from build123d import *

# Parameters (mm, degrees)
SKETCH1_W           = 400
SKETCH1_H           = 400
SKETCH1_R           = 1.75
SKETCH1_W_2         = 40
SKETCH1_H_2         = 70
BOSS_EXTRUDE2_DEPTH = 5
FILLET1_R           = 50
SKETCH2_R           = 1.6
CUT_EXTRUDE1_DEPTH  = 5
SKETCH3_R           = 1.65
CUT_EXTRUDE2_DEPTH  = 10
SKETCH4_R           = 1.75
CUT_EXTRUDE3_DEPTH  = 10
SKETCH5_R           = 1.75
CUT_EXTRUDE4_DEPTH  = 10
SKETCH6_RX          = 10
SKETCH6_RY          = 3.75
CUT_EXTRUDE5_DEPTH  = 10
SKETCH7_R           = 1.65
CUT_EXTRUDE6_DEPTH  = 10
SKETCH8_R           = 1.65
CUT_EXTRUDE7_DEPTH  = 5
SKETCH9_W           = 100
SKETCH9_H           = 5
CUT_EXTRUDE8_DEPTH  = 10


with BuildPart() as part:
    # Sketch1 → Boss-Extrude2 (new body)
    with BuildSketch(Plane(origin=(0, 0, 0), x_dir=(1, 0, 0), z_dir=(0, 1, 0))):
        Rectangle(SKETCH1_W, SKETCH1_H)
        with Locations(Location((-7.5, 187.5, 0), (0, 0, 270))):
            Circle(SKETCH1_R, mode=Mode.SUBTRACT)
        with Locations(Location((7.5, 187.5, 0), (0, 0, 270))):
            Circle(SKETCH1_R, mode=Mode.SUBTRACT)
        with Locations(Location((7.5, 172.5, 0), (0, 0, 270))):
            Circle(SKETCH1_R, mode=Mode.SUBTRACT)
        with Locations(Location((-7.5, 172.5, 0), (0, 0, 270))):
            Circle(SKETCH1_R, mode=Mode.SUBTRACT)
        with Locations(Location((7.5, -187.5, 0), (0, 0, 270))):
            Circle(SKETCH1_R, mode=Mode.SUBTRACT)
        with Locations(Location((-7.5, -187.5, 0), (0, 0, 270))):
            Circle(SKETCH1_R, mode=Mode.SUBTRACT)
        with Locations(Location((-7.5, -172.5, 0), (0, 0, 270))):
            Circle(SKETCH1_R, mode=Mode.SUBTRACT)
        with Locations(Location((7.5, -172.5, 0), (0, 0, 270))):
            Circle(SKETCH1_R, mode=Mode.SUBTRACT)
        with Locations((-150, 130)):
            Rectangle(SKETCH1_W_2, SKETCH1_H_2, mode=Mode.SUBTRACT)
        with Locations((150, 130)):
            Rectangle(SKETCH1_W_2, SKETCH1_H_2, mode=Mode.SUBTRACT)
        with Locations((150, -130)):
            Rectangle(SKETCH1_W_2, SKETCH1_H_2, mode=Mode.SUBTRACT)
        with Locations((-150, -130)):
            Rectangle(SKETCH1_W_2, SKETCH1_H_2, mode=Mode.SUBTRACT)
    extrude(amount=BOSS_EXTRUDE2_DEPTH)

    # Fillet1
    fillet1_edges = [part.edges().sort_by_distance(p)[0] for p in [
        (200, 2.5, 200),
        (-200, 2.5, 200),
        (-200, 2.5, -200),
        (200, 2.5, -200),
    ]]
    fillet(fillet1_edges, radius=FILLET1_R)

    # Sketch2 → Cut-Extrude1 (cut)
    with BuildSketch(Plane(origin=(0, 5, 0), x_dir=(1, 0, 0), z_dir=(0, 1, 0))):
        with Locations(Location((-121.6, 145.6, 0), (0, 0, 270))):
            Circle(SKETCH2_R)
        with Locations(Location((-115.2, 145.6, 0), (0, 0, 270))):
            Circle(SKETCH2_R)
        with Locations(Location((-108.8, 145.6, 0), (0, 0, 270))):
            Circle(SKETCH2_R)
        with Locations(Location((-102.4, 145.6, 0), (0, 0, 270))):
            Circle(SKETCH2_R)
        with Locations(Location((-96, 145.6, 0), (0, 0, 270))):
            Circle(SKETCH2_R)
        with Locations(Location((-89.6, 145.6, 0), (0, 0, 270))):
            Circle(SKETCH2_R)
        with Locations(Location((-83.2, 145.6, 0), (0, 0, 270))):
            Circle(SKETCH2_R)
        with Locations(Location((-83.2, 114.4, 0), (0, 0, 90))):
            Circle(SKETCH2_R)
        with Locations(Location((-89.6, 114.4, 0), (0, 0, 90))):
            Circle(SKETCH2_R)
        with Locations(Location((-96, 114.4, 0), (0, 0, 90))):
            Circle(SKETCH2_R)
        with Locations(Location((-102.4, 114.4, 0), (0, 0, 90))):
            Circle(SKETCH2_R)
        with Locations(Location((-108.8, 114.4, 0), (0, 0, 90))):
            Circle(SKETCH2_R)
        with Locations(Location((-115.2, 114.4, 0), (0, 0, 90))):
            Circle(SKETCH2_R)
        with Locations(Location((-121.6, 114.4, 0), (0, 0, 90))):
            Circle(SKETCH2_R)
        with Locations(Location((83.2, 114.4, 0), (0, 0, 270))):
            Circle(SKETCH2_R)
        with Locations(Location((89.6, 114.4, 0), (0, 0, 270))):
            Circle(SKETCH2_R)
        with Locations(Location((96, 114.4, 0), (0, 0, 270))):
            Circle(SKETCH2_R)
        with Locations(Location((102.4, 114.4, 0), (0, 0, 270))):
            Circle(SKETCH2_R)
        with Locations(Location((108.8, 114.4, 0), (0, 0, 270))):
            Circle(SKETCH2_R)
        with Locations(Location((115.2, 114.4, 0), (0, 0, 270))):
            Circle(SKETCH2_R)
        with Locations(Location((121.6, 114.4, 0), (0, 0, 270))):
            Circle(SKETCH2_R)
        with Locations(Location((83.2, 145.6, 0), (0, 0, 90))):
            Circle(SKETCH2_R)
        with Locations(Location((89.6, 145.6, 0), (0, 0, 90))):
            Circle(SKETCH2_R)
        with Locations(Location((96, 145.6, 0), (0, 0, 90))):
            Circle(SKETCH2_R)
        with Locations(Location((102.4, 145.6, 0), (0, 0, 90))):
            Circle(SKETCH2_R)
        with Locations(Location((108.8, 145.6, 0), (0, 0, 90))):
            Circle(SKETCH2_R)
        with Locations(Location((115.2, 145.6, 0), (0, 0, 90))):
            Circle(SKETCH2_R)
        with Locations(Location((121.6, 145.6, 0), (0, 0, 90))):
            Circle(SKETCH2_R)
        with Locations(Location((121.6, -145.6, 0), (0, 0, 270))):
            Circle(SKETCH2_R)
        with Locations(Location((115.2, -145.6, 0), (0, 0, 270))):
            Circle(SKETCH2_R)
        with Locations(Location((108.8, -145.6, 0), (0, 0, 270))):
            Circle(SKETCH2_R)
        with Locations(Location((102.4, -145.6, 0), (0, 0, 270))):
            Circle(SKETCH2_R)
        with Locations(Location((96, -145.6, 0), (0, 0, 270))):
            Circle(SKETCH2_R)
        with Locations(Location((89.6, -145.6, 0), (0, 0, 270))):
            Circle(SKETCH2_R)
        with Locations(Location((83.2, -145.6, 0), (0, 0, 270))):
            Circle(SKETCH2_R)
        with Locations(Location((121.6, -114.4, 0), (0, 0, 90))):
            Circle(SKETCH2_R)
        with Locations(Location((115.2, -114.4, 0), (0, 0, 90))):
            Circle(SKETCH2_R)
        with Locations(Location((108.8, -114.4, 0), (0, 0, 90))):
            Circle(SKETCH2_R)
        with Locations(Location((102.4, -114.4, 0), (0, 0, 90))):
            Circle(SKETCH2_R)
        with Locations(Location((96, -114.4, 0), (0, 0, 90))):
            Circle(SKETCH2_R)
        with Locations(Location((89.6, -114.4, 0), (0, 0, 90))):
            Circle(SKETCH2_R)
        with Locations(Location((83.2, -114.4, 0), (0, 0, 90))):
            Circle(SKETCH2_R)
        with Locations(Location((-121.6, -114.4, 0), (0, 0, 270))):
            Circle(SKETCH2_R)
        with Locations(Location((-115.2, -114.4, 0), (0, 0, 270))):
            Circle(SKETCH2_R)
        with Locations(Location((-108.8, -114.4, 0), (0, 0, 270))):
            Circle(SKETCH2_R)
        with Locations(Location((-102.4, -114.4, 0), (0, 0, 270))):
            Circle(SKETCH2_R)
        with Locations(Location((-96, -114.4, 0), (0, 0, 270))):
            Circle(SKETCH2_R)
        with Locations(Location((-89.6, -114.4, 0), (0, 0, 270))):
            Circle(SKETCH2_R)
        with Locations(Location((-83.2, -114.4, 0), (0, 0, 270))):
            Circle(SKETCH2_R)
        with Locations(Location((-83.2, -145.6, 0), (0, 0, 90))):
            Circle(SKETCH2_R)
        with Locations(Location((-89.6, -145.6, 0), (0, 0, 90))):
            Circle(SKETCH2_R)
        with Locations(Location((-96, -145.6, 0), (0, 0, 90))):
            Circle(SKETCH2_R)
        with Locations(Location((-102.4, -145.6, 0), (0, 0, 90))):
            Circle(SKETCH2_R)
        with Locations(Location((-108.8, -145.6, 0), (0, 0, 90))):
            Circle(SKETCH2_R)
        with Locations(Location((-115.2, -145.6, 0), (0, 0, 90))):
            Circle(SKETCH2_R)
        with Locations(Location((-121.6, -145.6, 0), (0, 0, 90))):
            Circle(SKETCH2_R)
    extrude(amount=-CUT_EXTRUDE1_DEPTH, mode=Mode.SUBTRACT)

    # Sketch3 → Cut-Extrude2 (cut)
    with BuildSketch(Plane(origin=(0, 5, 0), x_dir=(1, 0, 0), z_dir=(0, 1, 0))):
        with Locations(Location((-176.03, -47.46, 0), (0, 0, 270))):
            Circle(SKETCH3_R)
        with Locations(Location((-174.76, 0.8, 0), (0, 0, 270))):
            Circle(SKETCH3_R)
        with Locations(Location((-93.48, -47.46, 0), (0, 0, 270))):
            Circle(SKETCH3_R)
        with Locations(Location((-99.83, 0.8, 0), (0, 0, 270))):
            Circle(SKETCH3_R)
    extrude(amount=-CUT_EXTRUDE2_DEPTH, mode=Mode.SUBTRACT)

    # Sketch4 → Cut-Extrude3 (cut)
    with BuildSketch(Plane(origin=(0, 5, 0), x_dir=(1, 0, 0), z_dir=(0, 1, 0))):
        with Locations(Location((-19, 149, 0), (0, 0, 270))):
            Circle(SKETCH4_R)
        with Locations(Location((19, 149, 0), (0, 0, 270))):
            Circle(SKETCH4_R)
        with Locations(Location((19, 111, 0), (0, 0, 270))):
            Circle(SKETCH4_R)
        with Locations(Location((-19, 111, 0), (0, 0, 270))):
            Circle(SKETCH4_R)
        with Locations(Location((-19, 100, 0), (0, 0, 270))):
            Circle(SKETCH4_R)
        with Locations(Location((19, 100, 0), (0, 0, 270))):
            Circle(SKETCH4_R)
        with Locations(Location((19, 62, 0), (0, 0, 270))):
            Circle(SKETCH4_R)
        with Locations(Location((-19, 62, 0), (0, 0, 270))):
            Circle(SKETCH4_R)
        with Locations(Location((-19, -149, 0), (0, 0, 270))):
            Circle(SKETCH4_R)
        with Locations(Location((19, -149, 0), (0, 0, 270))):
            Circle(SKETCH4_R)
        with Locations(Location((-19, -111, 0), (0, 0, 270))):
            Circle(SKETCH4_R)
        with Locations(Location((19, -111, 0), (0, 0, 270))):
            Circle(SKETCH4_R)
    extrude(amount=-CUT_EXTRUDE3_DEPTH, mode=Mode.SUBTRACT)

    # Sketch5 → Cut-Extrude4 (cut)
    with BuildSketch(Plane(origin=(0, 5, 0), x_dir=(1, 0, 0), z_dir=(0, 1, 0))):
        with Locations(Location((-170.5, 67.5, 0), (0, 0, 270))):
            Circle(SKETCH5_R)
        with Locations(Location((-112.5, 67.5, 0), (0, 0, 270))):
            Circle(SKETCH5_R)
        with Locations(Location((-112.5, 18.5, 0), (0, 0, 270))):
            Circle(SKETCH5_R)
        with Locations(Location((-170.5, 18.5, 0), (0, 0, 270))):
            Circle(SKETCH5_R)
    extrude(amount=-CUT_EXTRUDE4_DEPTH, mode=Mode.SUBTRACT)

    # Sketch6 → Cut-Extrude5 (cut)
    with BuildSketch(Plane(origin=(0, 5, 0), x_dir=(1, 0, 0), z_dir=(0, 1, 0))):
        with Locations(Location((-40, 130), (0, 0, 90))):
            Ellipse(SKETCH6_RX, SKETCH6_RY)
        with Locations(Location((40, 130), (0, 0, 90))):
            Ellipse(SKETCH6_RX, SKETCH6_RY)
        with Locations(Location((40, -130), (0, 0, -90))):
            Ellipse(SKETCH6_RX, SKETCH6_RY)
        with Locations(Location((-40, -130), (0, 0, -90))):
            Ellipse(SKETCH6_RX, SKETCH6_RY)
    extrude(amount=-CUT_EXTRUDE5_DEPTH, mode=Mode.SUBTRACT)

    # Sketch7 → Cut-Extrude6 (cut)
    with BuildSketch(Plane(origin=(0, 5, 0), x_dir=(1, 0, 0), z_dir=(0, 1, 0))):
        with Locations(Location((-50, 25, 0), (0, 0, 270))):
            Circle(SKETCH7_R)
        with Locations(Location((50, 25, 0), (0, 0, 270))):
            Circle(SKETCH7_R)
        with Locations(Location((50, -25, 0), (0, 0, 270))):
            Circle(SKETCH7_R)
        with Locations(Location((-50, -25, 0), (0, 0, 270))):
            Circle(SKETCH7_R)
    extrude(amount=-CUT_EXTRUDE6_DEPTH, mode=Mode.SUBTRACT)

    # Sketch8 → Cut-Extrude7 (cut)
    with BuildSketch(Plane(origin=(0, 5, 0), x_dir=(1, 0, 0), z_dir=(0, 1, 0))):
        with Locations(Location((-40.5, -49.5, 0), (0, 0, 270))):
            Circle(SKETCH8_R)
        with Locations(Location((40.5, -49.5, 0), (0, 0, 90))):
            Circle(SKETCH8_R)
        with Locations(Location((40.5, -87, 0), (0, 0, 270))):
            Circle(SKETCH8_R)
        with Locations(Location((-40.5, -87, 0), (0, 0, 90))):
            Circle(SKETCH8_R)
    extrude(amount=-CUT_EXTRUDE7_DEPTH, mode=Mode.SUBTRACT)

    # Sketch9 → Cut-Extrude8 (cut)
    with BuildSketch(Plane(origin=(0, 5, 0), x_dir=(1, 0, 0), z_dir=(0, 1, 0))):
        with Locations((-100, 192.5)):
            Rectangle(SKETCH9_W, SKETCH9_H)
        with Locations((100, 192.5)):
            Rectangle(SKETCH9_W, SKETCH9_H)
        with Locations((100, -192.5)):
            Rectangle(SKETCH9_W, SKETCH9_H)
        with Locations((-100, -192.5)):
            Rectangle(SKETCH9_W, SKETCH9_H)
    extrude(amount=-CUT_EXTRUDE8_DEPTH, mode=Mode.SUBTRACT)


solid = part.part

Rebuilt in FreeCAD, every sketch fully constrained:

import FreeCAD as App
import Part
import Sketcher

V = App.Vector
Q = App.Units.Quantity


def edges_at(feature, points):
    """Names of the edges that pass closest to the given points."""
    edges = feature.Shape.Edges
    near = lambda p: min(range(len(edges)), key=lambda i: edges[i].distToShape(Part.Vertex(*p))[0])
    return sorted({f"Edge{near(p) + 1}" for p in points})

doc = App.newDocument("Part")
params = doc.addObject("Spreadsheet::Sheet", "Params")
for row, (alias, value) in enumerate([
    ("sketch1_diameter", "3.5 mm"),
    ("sketch1_width", "400 mm"),
    ("sketch1_width2", "40 mm"),
    ("sketch1_height", "70 mm"),
    ("pad1_length", "5 mm"),
    ("fillet_radius", "50 mm"),
    ("sketch2_diameter", "3.2 mm"),
    ("pocket1_length", "5 mm"),
    ("sketch3_diameter", "3.3 mm"),
    ("pocket2_length", "10 mm"),
    ("sketch4_diameter", "3.5 mm"),
    ("pocket3_length", "10 mm"),
    ("sketch5_diameter", "3.5 mm"),
    ("pocket4_length", "10 mm"),
    ("pocket5_length", "10 mm"),
    ("sketch7_diameter", "3.3 mm"),
    ("pocket6_length", "10 mm"),
    ("sketch8_diameter", "3.3 mm"),
    ("pocket7_length", "5 mm"),
    ("sketch9_width", "100 mm"),
    ("sketch9_height", "5 mm"),
    ("pocket8_length", "10 mm"),
], start=1):
    params.set(f"A{row}", alias)
    params.set(f"B{row}", "=" + value)
    params.setAlias(f"B{row}", alias)

body = doc.addObject("PartDesign::Body", "Body")

# Sketch on XZ plane
sketch1 = body.newObject("Sketcher::SketchObject", "Sketch")
sketch1.AttachmentSupport = (doc.getObject("XZ_Plane"), [""])
sketch1.MapMode = "FlatFace"
sketch1.addGeometry(Part.LineSegment(V(-200, -200, 0), V(-200, 200, 0)), False)
sketch1.addGeometry(Part.LineSegment(V(-200, 200, 0), V(200, 200, 0)), False)
sketch1.addGeometry(Part.LineSegment(V(200, 200, 0), V(200, -200, 0)), False)
sketch1.addGeometry(Part.LineSegment(V(200, -200, 0), V(-200, -200, 0)), False)
sketch1.addGeometry(Part.LineSegment(V(-130, 165, 0), V(-170, 165, 0)), False)
sketch1.addGeometry(Part.LineSegment(V(-170, 165, 0), V(-170, 95, 0)), False)
sketch1.addGeometry(Part.LineSegment(V(-170, 95, 0), V(-130, 95, 0)), False)
sketch1.addGeometry(Part.LineSegment(V(-130, 95, 0), V(-130, 165, 0)), False)
sketch1.addGeometry(Part.Circle(V(-7.5, 187.5, 0), V(0, 0, 1), 1.8), False)
sketch1.addGeometry(Part.Circle(V(-7.5, 172.5, 0), V(0, 0, 1), 1.8), False)
sketch1.addGeometry(Part.Circle(V(7.5, 187.5, 0), V(0, 0, 1), 1.8), False)
sketch1.addGeometry(Part.Circle(V(7.5, 172.5, 0), V(0, 0, 1), 1.8), False)
sketch1.addGeometry(Part.LineSegment(V(170, 165, 0), V(130, 165, 0)), False)
sketch1.addGeometry(Part.LineSegment(V(130, 165, 0), V(130, 95, 0)), False)
sketch1.addGeometry(Part.LineSegment(V(130, 95, 0), V(170, 95, 0)), False)
sketch1.addGeometry(Part.LineSegment(V(170, 95, 0), V(170, 165, 0)), False)
sketch1.addGeometry(Part.LineSegment(V(-130, -95, 0), V(-170, -95, 0)), False)
sketch1.addGeometry(Part.LineSegment(V(-170, -95, 0), V(-170, -165, 0)), False)
sketch1.addGeometry(Part.LineSegment(V(-170, -165, 0), V(-130, -165, 0)), False)
sketch1.addGeometry(Part.LineSegment(V(-130, -165, 0), V(-130, -95, 0)), False)
sketch1.addGeometry(Part.Circle(V(-7.5, -172.5, 0), V(0, 0, 1), 1.8), False)
sketch1.addGeometry(Part.Circle(V(-7.5, -187.5, 0), V(0, 0, 1), 1.8), False)
sketch1.addGeometry(Part.Circle(V(7.5, -172.5, 0), V(0, 0, 1), 1.8), False)
sketch1.addGeometry(Part.Circle(V(7.5, -187.5, 0), V(0, 0, 1), 1.8), False)
sketch1.addGeometry(Part.LineSegment(V(170, -95, 0), V(130, -95, 0)), False)
sketch1.addGeometry(Part.LineSegment(V(130, -95, 0), V(130, -165, 0)), False)
sketch1.addGeometry(Part.LineSegment(V(130, -165, 0), V(170, -165, 0)), False)
sketch1.addGeometry(Part.LineSegment(V(170, -165, 0), V(170, -95, 0)), False)
sketch1.addConstraint(Sketcher.Constraint("Coincident", 0, 2, 1, 1))
sketch1.addConstraint(Sketcher.Constraint("Coincident", 1, 2, 2, 1))
sketch1.addConstraint(Sketcher.Constraint("Coincident", 2, 2, 3, 1))
sketch1.addConstraint(Sketcher.Constraint("Coincident", 3, 2, 0, 1))
sketch1.addConstraint(Sketcher.Constraint("Coincident", 4, 2, 5, 1))
sketch1.addConstraint(Sketcher.Constraint("Coincident", 5, 2, 6, 1))
sketch1.addConstraint(Sketcher.Constraint("Coincident", 6, 2, 7, 1))
sketch1.addConstraint(Sketcher.Constraint("Coincident", 7, 2, 4, 1))
sketch1.addConstraint(Sketcher.Constraint("Coincident", 12, 2, 13, 1))
sketch1.addConstraint(Sketcher.Constraint("Coincident", 13, 2, 14, 1))
sketch1.addConstraint(Sketcher.Constraint("Coincident", 14, 2, 15, 1))
sketch1.addConstraint(Sketcher.Constraint("Coincident", 15, 2, 12, 1))
sketch1.addConstraint(Sketcher.Constraint("Coincident", 16, 2, 17, 1))
sketch1.addConstraint(Sketcher.Constraint("Coincident", 17, 2, 18, 1))
sketch1.addConstraint(Sketcher.Constraint("Coincident", 18, 2, 19, 1))
sketch1.addConstraint(Sketcher.Constraint("Coincident", 19, 2, 16, 1))
sketch1.addConstraint(Sketcher.Constraint("Coincident", 24, 2, 25, 1))
sketch1.addConstraint(Sketcher.Constraint("Coincident", 25, 2, 26, 1))
sketch1.addConstraint(Sketcher.Constraint("Coincident", 26, 2, 27, 1))
sketch1.addConstraint(Sketcher.Constraint("Coincident", 27, 2, 24, 1))
sketch1.addConstraint(Sketcher.Constraint("Vertical", 0))
sketch1.addConstraint(Sketcher.Constraint("Horizontal", 1))
sketch1.addConstraint(Sketcher.Constraint("Vertical", 2))
sketch1.addConstraint(Sketcher.Constraint("Horizontal", 3))
sketch1.addConstraint(Sketcher.Constraint("Horizontal", 4))
sketch1.addConstraint(Sketcher.Constraint("Vertical", 5))
sketch1.addConstraint(Sketcher.Constraint("Horizontal", 6))
sketch1.addConstraint(Sketcher.Constraint("Vertical", 7))
sketch1.addConstraint(Sketcher.Constraint("Horizontal", 12))
sketch1.addConstraint(Sketcher.Constraint("Vertical", 13))
sketch1.addConstraint(Sketcher.Constraint("Horizontal", 14))
sketch1.addConstraint(Sketcher.Constraint("Vertical", 15))
sketch1.addConstraint(Sketcher.Constraint("Horizontal", 16))
sketch1.addConstraint(Sketcher.Constraint("Vertical", 17))
sketch1.addConstraint(Sketcher.Constraint("Horizontal", 18))
sketch1.addConstraint(Sketcher.Constraint("Vertical", 19))
sketch1.addConstraint(Sketcher.Constraint("Horizontal", 24))
sketch1.addConstraint(Sketcher.Constraint("Vertical", 25))
sketch1.addConstraint(Sketcher.Constraint("Horizontal", 26))
sketch1.addConstraint(Sketcher.Constraint("Vertical", 27))
sketch1.addConstraint(Sketcher.Constraint("Equal", 8, 9))
sketch1.addConstraint(Sketcher.Constraint("Equal", 9, 10))
sketch1.addConstraint(Sketcher.Constraint("Equal", 10, 11))
sketch1.addConstraint(Sketcher.Constraint("Equal", 11, 20))
sketch1.addConstraint(Sketcher.Constraint("Equal", 20, 21))
sketch1.addConstraint(Sketcher.Constraint("Equal", 21, 22))
sketch1.addConstraint(Sketcher.Constraint("Equal", 22, 23))
sketch1.addConstraint(Sketcher.Constraint("Symmetric", 11, 3, 20, 3, -1, 1))
sketch1.addConstraint(Sketcher.Constraint("Symmetric", 10, 3, 21, 3, -1, 1))
sketch1.addConstraint(Sketcher.Constraint("Symmetric", 9, 3, 22, 3, -1, 1))
sketch1.addConstraint(Sketcher.Constraint("Symmetric", 8, 3, 23, 3, -1, 1))
sketch1.addConstraint(Sketcher.Constraint("Symmetric", 0, 2, 2, 2, -1, 1))
sketch1.addConstraint(Sketcher.Constraint("Symmetric", 14, 2, 16, 2, -1, 1))
sketch1.addConstraint(Sketcher.Constraint("Symmetric", 12, 2, 18, 2, -1, 1))
sketch1.addConstraint(Sketcher.Constraint("Symmetric", 6, 2, 24, 2, -1, 1))
sketch1.addConstraint(Sketcher.Constraint("Symmetric", 4, 2, 26, 2, -1, 1))
sketch1.addConstraint(Sketcher.Constraint("Symmetric", 8, 3, 10, 3, -2))
sketch1.addConstraint(Sketcher.Constraint("Symmetric", 9, 3, 11, 3, -2))
sketch1.addConstraint(Sketcher.Constraint("Symmetric", 7, 2, 12, 2, -2))
sketch1.addConstraint(Sketcher.Constraint("Symmetric", 5, 2, 14, 2, -2))
sketch1.addConstraint(Sketcher.Constraint("Vertical", 8, 3, 9, 3))
sketch1.addConstraint(Sketcher.Constraint("Equal", 3, 0))
sketch1.addConstraint(Sketcher.Constraint("Diameter", 8, Q("3.5 mm")))
sketch1.addConstraint(Sketcher.Constraint("DistanceX", 1, 1, 1, 2, Q("400 mm")))
sketch1.addConstraint(Sketcher.Constraint("DistanceX", 4, 2, 4, 1, Q("40 mm")))
sketch1.addConstraint(Sketcher.Constraint("DistanceY", 5, 2, 5, 1, Q("70 mm")))
sketch1.addConstraint(Sketcher.Constraint("DistanceX", 4, 2, -1, 1, Q("170 mm")))
sketch1.addConstraint(Sketcher.Constraint("DistanceY", -1, 1, 4, 2, Q("165 mm")))
sketch1.addConstraint(Sketcher.Constraint("DistanceY", 9, 3, 8, 3, Q("15 mm")))
sketch1.addConstraint(Sketcher.Constraint("DistanceX", 8, 3, 10, 3, Q("15 mm")))
sketch1.addConstraint(Sketcher.Constraint("DistanceY", 20, 3, 9, 3, Q("345 mm")))
sketch1.setExpression("Constraints[62]", "Params.sketch1_diameter")
sketch1.setExpression("Constraints[63]", "Params.sketch1_width")
sketch1.setExpression("Constraints[64]", "Params.sketch1_width2")
sketch1.setExpression("Constraints[65]", "Params.sketch1_height")
pad1 = body.newObject("PartDesign::Pad", "Pad")
pad1.Profile = sketch1
pad1.setExpression("Length", "Params.pad1_length")
pad1.Reversed = True
doc.recompute()

fillet = body.newObject("PartDesign::Fillet", "Fillet")
fillet.Base = (pad1, edges_at(pad1, [
    (200, 2.5, 200),
    (-200, 2.5, 200),
    (-200, 2.5, -200),
    (200, 2.5, -200),
]))
fillet.setExpression("Radius", "Params.fillet_radius")

# Sketch on XZ plane
sketch2 = body.newObject("Sketcher::SketchObject", "Sketch001")
sketch2.AttachmentSupport = (doc.getObject("XZ_Plane"), [""])
sketch2.MapMode = "FlatFace"
sketch2.AttachmentOffset = App.Placement(V(0, 0, -5), App.Rotation())
sketch2.addGeometry(Part.Circle(V(-121.6, -145.6, 0), V(0, 0, 1), 1.6), False)
sketch2.addGeometry(Part.Circle(V(-115.2, -145.6, 0), V(0, 0, 1), 1.6), False)
sketch2.addGeometry(Part.Circle(V(-108.8, -145.6, 0), V(0, 0, 1), 1.6), False)
sketch2.addGeometry(Part.Circle(V(-102.4, -145.6, 0), V(0, 0, 1), 1.6), False)
sketch2.addGeometry(Part.Circle(V(-96, -145.6, 0), V(0, 0, 1), 1.6), False)
sketch2.addGeometry(Part.Circle(V(-89.6, -145.6, 0), V(0, 0, 1), 1.6), False)
sketch2.addGeometry(Part.Circle(V(-83.2, -145.6, 0), V(0, 0, 1), 1.6), False)
sketch2.addGeometry(Part.Circle(V(-83.2, -114.4, 0), V(0, 0, 1), 1.6), False)
sketch2.addGeometry(Part.Circle(V(-89.6, -114.4, 0), V(0, 0, 1), 1.6), False)
sketch2.addGeometry(Part.Circle(V(-96, -114.4, 0), V(0, 0, 1), 1.6), False)
sketch2.addGeometry(Part.Circle(V(-102.4, -114.4, 0), V(0, 0, 1), 1.6), False)
sketch2.addGeometry(Part.Circle(V(-108.8, -114.4, 0), V(0, 0, 1), 1.6), False)
sketch2.addGeometry(Part.Circle(V(-115.2, -114.4, 0), V(0, 0, 1), 1.6), False)
sketch2.addGeometry(Part.Circle(V(-121.6, -114.4, 0), V(0, 0, 1), 1.6), False)
sketch2.addGeometry(Part.Circle(V(83.2, -114.4, 0), V(0, 0, 1), 1.6), False)
sketch2.addGeometry(Part.Circle(V(89.6, -114.4, 0), V(0, 0, 1), 1.6), False)
sketch2.addGeometry(Part.Circle(V(96, -114.4, 0), V(0, 0, 1), 1.6), False)
sketch2.addGeometry(Part.Circle(V(102.4, -114.4, 0), V(0, 0, 1), 1.6), False)
sketch2.addGeometry(Part.Circle(V(108.8, -114.4, 0), V(0, 0, 1), 1.6), False)
sketch2.addGeometry(Part.Circle(V(115.2, -114.4, 0), V(0, 0, 1), 1.6), False)
sketch2.addGeometry(Part.Circle(V(121.6, -114.4, 0), V(0, 0, 1), 1.6), False)
sketch2.addGeometry(Part.Circle(V(83.2, -145.6, 0), V(0, 0, 1), 1.6), False)
sketch2.addGeometry(Part.Circle(V(89.6, -145.6, 0), V(0, 0, 1), 1.6), False)
sketch2.addGeometry(Part.Circle(V(96, -145.6, 0), V(0, 0, 1), 1.6), False)
sketch2.addGeometry(Part.Circle(V(102.4, -145.6, 0), V(0, 0, 1), 1.6), False)
sketch2.addGeometry(Part.Circle(V(108.8, -145.6, 0), V(0, 0, 1), 1.6), False)
sketch2.addGeometry(Part.Circle(V(115.2, -145.6, 0), V(0, 0, 1), 1.6), False)
sketch2.addGeometry(Part.Circle(V(121.6, -145.6, 0), V(0, 0, 1), 1.6), False)
sketch2.addGeometry(Part.Circle(V(121.6, 145.6, 0), V(0, 0, 1), 1.6), False)
sketch2.addGeometry(Part.Circle(V(115.2, 145.6, 0), V(0, 0, 1), 1.6), False)
sketch2.addGeometry(Part.Circle(V(108.8, 145.6, 0), V(0, 0, 1), 1.6), False)
sketch2.addGeometry(Part.Circle(V(102.4, 145.6, 0), V(0, 0, 1), 1.6), False)
sketch2.addGeometry(Part.Circle(V(96, 145.6, 0), V(0, 0, 1), 1.6), False)
sketch2.addGeometry(Part.Circle(V(89.6, 145.6, 0), V(0, 0, 1), 1.6), False)
sketch2.addGeometry(Part.Circle(V(83.2, 145.6, 0), V(0, 0, 1), 1.6), False)
sketch2.addGeometry(Part.Circle(V(121.6, 114.4, 0), V(0, 0, 1), 1.6), False)
sketch2.addGeometry(Part.Circle(V(115.2, 114.4, 0), V(0, 0, 1), 1.6), False)
sketch2.addGeometry(Part.Circle(V(108.8, 114.4, 0), V(0, 0, 1), 1.6), False)
sketch2.addGeometry(Part.Circle(V(102.4, 114.4, 0), V(0, 0, 1), 1.6), False)
sketch2.addGeometry(Part.Circle(V(96, 114.4, 0), V(0, 0, 1), 1.6), False)
sketch2.addGeometry(Part.Circle(V(89.6, 114.4, 0), V(0, 0, 1), 1.6), False)
sketch2.addGeometry(Part.Circle(V(83.2, 114.4, 0), V(0, 0, 1), 1.6), False)
sketch2.addGeometry(Part.Circle(V(-121.6, 114.4, 0), V(0, 0, 1), 1.6), False)
sketch2.addGeometry(Part.Circle(V(-115.2, 114.4, 0), V(0, 0, 1), 1.6), False)
sketch2.addGeometry(Part.Circle(V(-108.8, 114.4, 0), V(0, 0, 1), 1.6), False)
sketch2.addGeometry(Part.Circle(V(-102.4, 114.4, 0), V(0, 0, 1), 1.6), False)
sketch2.addGeometry(Part.Circle(V(-96, 114.4, 0), V(0, 0, 1), 1.6), False)
sketch2.addGeometry(Part.Circle(V(-89.6, 114.4, 0), V(0, 0, 1), 1.6), False)
sketch2.addGeometry(Part.Circle(V(-83.2, 114.4, 0), V(0, 0, 1), 1.6), False)
sketch2.addGeometry(Part.Circle(V(-83.2, 145.6, 0), V(0, 0, 1), 1.6), False)
sketch2.addGeometry(Part.Circle(V(-89.6, 145.6, 0), V(0, 0, 1), 1.6), False)
sketch2.addGeometry(Part.Circle(V(-96, 145.6, 0), V(0, 0, 1), 1.6), False)
sketch2.addGeometry(Part.Circle(V(-102.4, 145.6, 0), V(0, 0, 1), 1.6), False)
sketch2.addGeometry(Part.Circle(V(-108.8, 145.6, 0), V(0, 0, 1), 1.6), False)
sketch2.addGeometry(Part.Circle(V(-115.2, 145.6, 0), V(0, 0, 1), 1.6), False)
sketch2.addGeometry(Part.Circle(V(-121.6, 145.6, 0), V(0, 0, 1), 1.6), False)
sketch2.addConstraint(Sketcher.Constraint("Equal", 0, 1))
sketch2.addConstraint(Sketcher.Constraint("Equal", 1, 2))
sketch2.addConstraint(Sketcher.Constraint("Equal", 2, 3))
sketch2.addConstraint(Sketcher.Constraint("Equal", 3, 4))
sketch2.addConstraint(Sketcher.Constraint("Equal", 4, 5))
sketch2.addConstraint(Sketcher.Constraint("Equal", 5, 6))
sketch2.addConstraint(Sketcher.Constraint("Equal", 6, 7))
sketch2.addConstraint(Sketcher.Constraint("Equal", 7, 8))
sketch2.addConstraint(Sketcher.Constraint("Equal", 8, 9))
sketch2.addConstraint(Sketcher.Constraint("Equal", 9, 10))
sketch2.addConstraint(Sketcher.Constraint("Equal", 10, 11))
sketch2.addConstraint(Sketcher.Constraint("Equal", 11, 12))
sketch2.addConstraint(Sketcher.Constraint("Equal", 12, 13))
sketch2.addConstraint(Sketcher.Constraint("Equal", 13, 14))
sketch2.addConstraint(Sketcher.Constraint("Equal", 14, 15))
sketch2.addConstraint(Sketcher.Constraint("Equal", 15, 16))
sketch2.addConstraint(Sketcher.Constraint("Equal", 16, 17))
sketch2.addConstraint(Sketcher.Constraint("Equal", 17, 18))
sketch2.addConstraint(Sketcher.Constraint("Equal", 18, 19))
sketch2.addConstraint(Sketcher.Constraint("Equal", 19, 20))
sketch2.addConstraint(Sketcher.Constraint("Equal", 20, 21))
sketch2.addConstraint(Sketcher.Constraint("Equal", 21, 22))
sketch2.addConstraint(Sketcher.Constraint("Equal", 22, 23))
sketch2.addConstraint(Sketcher.Constraint("Equal", 23, 24))
sketch2.addConstraint(Sketcher.Constraint("Equal", 24, 25))
sketch2.addConstraint(Sketcher.Constraint("Equal", 25, 26))
sketch2.addConstraint(Sketcher.Constraint("Equal", 26, 27))
sketch2.addConstraint(Sketcher.Constraint("Equal", 27, 28))
sketch2.addConstraint(Sketcher.Constraint("Equal", 28, 29))
sketch2.addConstraint(Sketcher.Constraint("Equal", 29, 30))
sketch2.addConstraint(Sketcher.Constraint("Equal", 30, 31))
sketch2.addConstraint(Sketcher.Constraint("Equal", 31, 32))
sketch2.addConstraint(Sketcher.Constraint("Equal", 32, 33))
sketch2.addConstraint(Sketcher.Constraint("Equal", 33, 34))
sketch2.addConstraint(Sketcher.Constraint("Equal", 34, 35))
sketch2.addConstraint(Sketcher.Constraint("Equal", 35, 36))
sketch2.addConstraint(Sketcher.Constraint("Equal", 36, 37))
sketch2.addConstraint(Sketcher.Constraint("Equal", 37, 38))
sketch2.addConstraint(Sketcher.Constraint("Equal", 38, 39))
sketch2.addConstraint(Sketcher.Constraint("Equal", 39, 40))
sketch2.addConstraint(Sketcher.Constraint("Equal", 40, 41))
sketch2.addConstraint(Sketcher.Constraint("Equal", 41, 42))
sketch2.addConstraint(Sketcher.Constraint("Equal", 42, 43))
sketch2.addConstraint(Sketcher.Constraint("Equal", 43, 44))
sketch2.addConstraint(Sketcher.Constraint("Equal", 44, 45))
sketch2.addConstraint(Sketcher.Constraint("Equal", 45, 46))
sketch2.addConstraint(Sketcher.Constraint("Equal", 46, 47))
sketch2.addConstraint(Sketcher.Constraint("Equal", 47, 48))
sketch2.addConstraint(Sketcher.Constraint("Equal", 48, 49))
sketch2.addConstraint(Sketcher.Constraint("Equal", 49, 50))
sketch2.addConstraint(Sketcher.Constraint("Equal", 50, 51))
sketch2.addConstraint(Sketcher.Constraint("Equal", 51, 52))
sketch2.addConstraint(Sketcher.Constraint("Equal", 52, 53))
sketch2.addConstraint(Sketcher.Constraint("Equal", 53, 54))
sketch2.addConstraint(Sketcher.Constraint("Equal", 54, 55))
sketch2.addConstraint(Sketcher.Constraint("Symmetric", 0, 3, 28, 3, -1, 1))
sketch2.addConstraint(Sketcher.Constraint("Symmetric", 1, 3, 29, 3, -1, 1))
sketch2.addConstraint(Sketcher.Constraint("Symmetric", 2, 3, 30, 3, -1, 1))
sketch2.addConstraint(Sketcher.Constraint("Symmetric", 3, 3, 31, 3, -1, 1))
sketch2.addConstraint(Sketcher.Constraint("Symmetric", 4, 3, 32, 3, -1, 1))
sketch2.addConstraint(Sketcher.Constraint("Symmetric", 5, 3, 33, 3, -1, 1))
sketch2.addConstraint(Sketcher.Constraint("Symmetric", 6, 3, 34, 3, -1, 1))
sketch2.addConstraint(Sketcher.Constraint("Symmetric", 13, 3, 35, 3, -1, 1))
sketch2.addConstraint(Sketcher.Constraint("Symmetric", 12, 3, 36, 3, -1, 1))
sketch2.addConstraint(Sketcher.Constraint("Symmetric", 11, 3, 37, 3, -1, 1))
sketch2.addConstraint(Sketcher.Constraint("Symmetric", 10, 3, 38, 3, -1, 1))
sketch2.addConstraint(Sketcher.Constraint("Symmetric", 9, 3, 39, 3, -1, 1))
sketch2.addConstraint(Sketcher.Constraint("Symmetric", 8, 3, 40, 3, -1, 1))
sketch2.addConstraint(Sketcher.Constraint("Symmetric", 7, 3, 41, 3, -1, 1))
sketch2.addConstraint(Sketcher.Constraint("Symmetric", 20, 3, 42, 3, -1, 1))
sketch2.addConstraint(Sketcher.Constraint("Symmetric", 19, 3, 43, 3, -1, 1))
sketch2.addConstraint(Sketcher.Constraint("Symmetric", 18, 3, 44, 3, -1, 1))
sketch2.addConstraint(Sketcher.Constraint("Symmetric", 17, 3, 45, 3, -1, 1))
sketch2.addConstraint(Sketcher.Constraint("Symmetric", 16, 3, 46, 3, -1, 1))
sketch2.addConstraint(Sketcher.Constraint("Symmetric", 15, 3, 47, 3, -1, 1))
sketch2.addConstraint(Sketcher.Constraint("Symmetric", 14, 3, 48, 3, -1, 1))
sketch2.addConstraint(Sketcher.Constraint("Symmetric", 21, 3, 49, 3, -1, 1))
sketch2.addConstraint(Sketcher.Constraint("Symmetric", 22, 3, 50, 3, -1, 1))
sketch2.addConstraint(Sketcher.Constraint("Symmetric", 23, 3, 51, 3, -1, 1))
sketch2.addConstraint(Sketcher.Constraint("Symmetric", 24, 3, 52, 3, -1, 1))
sketch2.addConstraint(Sketcher.Constraint("Symmetric", 25, 3, 53, 3, -1, 1))
sketch2.addConstraint(Sketcher.Constraint("Symmetric", 26, 3, 54, 3, -1, 1))
sketch2.addConstraint(Sketcher.Constraint("Symmetric", 27, 3, 55, 3, -1, 1))
sketch2.addConstraint(Sketcher.Constraint("Symmetric", 7, 3, 14, 3, -2))
sketch2.addConstraint(Sketcher.Constraint("Symmetric", 8, 3, 15, 3, -2))
sketch2.addConstraint(Sketcher.Constraint("Symmetric", 9, 3, 16, 3, -2))
sketch2.addConstraint(Sketcher.Constraint("Symmetric", 10, 3, 17, 3, -2))
sketch2.addConstraint(Sketcher.Constraint("Symmetric", 11, 3, 18, 3, -2))
sketch2.addConstraint(Sketcher.Constraint("Symmetric", 12, 3, 19, 3, -2))
sketch2.addConstraint(Sketcher.Constraint("Symmetric", 13, 3, 20, 3, -2))
sketch2.addConstraint(Sketcher.Constraint("Symmetric", 6, 3, 21, 3, -2))
sketch2.addConstraint(Sketcher.Constraint("Symmetric", 5, 3, 22, 3, -2))
sketch2.addConstraint(Sketcher.Constraint("Symmetric", 4, 3, 23, 3, -2))
sketch2.addConstraint(Sketcher.Constraint("Symmetric", 3, 3, 24, 3, -2))
sketch2.addConstraint(Sketcher.Constraint("Symmetric", 2, 3, 25, 3, -2))
sketch2.addConstraint(Sketcher.Constraint("Symmetric", 1, 3, 26, 3, -2))
sketch2.addConstraint(Sketcher.Constraint("Symmetric", 0, 3, 27, 3, -2))
sketch2.addConstraint(Sketcher.Constraint("Horizontal", 0, 3, 1, 3))
sketch2.addConstraint(Sketcher.Constraint("Horizontal", 1, 3, 2, 3))
sketch2.addConstraint(Sketcher.Constraint("Horizontal", 2, 3, 3, 3))
sketch2.addConstraint(Sketcher.Constraint("Horizontal", 3, 3, 4, 3))
sketch2.addConstraint(Sketcher.Constraint("Horizontal", 4, 3, 5, 3))
sketch2.addConstraint(Sketcher.Constraint("Horizontal", 5, 3, 6, 3))
sketch2.addConstraint(Sketcher.Constraint("Horizontal", 7, 3, 8, 3))
sketch2.addConstraint(Sketcher.Constraint("Horizontal", 8, 3, 9, 3))
sketch2.addConstraint(Sketcher.Constraint("Horizontal", 9, 3, 10, 3))
sketch2.addConstraint(Sketcher.Constraint("Horizontal", 10, 3, 11, 3))
sketch2.addConstraint(Sketcher.Constraint("Horizontal", 11, 3, 12, 3))
sketch2.addConstraint(Sketcher.Constraint("Horizontal", 12, 3, 13, 3))
sketch2.addConstraint(Sketcher.Constraint("Vertical", 6, 3, 7, 3))
sketch2.addConstraint(Sketcher.Constraint("Vertical", 5, 3, 8, 3))
sketch2.addConstraint(Sketcher.Constraint("Vertical", 4, 3, 9, 3))
sketch2.addConstraint(Sketcher.Constraint("Vertical", 3, 3, 10, 3))
sketch2.addConstraint(Sketcher.Constraint("Vertical", 2, 3, 11, 3))
sketch2.addConstraint(Sketcher.Constraint("Vertical", 1, 3, 12, 3))
sketch2.addConstraint(Sketcher.Constraint("Vertical", 0, 3, 13, 3))
sketch2.addConstraint(Sketcher.Constraint("Diameter", 0, Q("3.2 mm")))
sketch2.addConstraint(Sketcher.Constraint("DistanceX", 4, 3, -1, 1, Q("96 mm")))
sketch2.addConstraint(Sketcher.Constraint("DistanceX", 0, 3, 5, 3, Q("32 mm")))
sketch2.addConstraint(Sketcher.Constraint("DistanceX", 1, 3, 6, 3, Q("32 mm")))
sketch2.addConstraint(Sketcher.Constraint("DistanceX", 7, 3, 18, 3, Q("192 mm")))
sketch2.addConstraint(Sketcher.Constraint("DistanceY", 20, 3, 28, 3, Q("260 mm")))
sketch2.addConstraint(Sketcher.Constraint("DistanceX", 0, 3, -1, 1, Q("121.6 mm")))
sketch2.addConstraint(Sketcher.Constraint("DistanceY", 0, 3, -1, 1, Q("145.6 mm")))
sketch2.addConstraint(Sketcher.Constraint("DistanceX", 1, 3, -1, 1, Q("115.2 mm")))
sketch2.addConstraint(Sketcher.Constraint("DistanceX", 3, 3, -1, 1, Q("102.4 mm")))
sketch2.setExpression("Constraints[116]", "Params.sketch2_diameter")
pocket1 = body.newObject("PartDesign::Pocket", "Pocket")
pocket1.Profile = sketch2
pocket1.setExpression("Length", "Params.pocket1_length")
pocket1.Reversed = True

# Sketch on XZ plane
sketch3 = body.newObject("Sketcher::SketchObject", "Sketch002")
sketch3.AttachmentSupport = (doc.getObject("XZ_Plane"), [""])
sketch3.MapMode = "FlatFace"
sketch3.AttachmentOffset = App.Placement(V(0, 0, -5), App.Rotation())
sketch3.addGeometry(Part.Circle(V(-176, 47.5, 0), V(0, 0, 1), 1.6), False)
sketch3.addGeometry(Part.Circle(V(-174.8, -0.8, 0), V(0, 0, 1), 1.6), False)
sketch3.addGeometry(Part.Circle(V(-93.5, 47.5, 0), V(0, 0, 1), 1.6), False)
sketch3.addGeometry(Part.Circle(V(-99.8, -0.8, 0), V(0, 0, 1), 1.6), False)
sketch3.addConstraint(Sketcher.Constraint("Equal", 0, 1))
sketch3.addConstraint(Sketcher.Constraint("Equal", 1, 2))
sketch3.addConstraint(Sketcher.Constraint("Equal", 2, 3))
sketch3.addConstraint(Sketcher.Constraint("Horizontal", 0, 3, 2, 3))
sketch3.addConstraint(Sketcher.Constraint("Horizontal", 1, 3, 3, 3))
sketch3.addConstraint(Sketcher.Constraint("Diameter", 0, Q("3.3 mm")))
sketch3.addConstraint(Sketcher.Constraint("DistanceY", 1, 3, -1, 1, Q("0.8 mm")))
sketch3.addConstraint(Sketcher.Constraint("DistanceX", 0, 3, 3, 3, Q("76.2 mm")))
sketch3.addConstraint(Sketcher.Constraint("DistanceX", 0, 3, -1, 1, Q("176.03 mm")))
sketch3.addConstraint(Sketcher.Constraint("DistanceY", -1, 1, 0, 3, Q("47.46 mm")))
sketch3.addConstraint(Sketcher.Constraint("DistanceX", 1, 3, -1, 1, Q("174.76 mm")))
sketch3.addConstraint(Sketcher.Constraint("DistanceX", 2, 3, -1, 1, Q("93.48 mm")))
sketch3.setExpression("Constraints[5]", "Params.sketch3_diameter")
pocket2 = body.newObject("PartDesign::Pocket", "Pocket001")
pocket2.Profile = sketch3
pocket2.setExpression("Length", "Params.pocket2_length")
pocket2.Reversed = True

# Sketch on XZ plane
sketch4 = body.newObject("Sketcher::SketchObject", "Sketch003")
sketch4.AttachmentSupport = (doc.getObject("XZ_Plane"), [""])
sketch4.MapMode = "FlatFace"
sketch4.AttachmentOffset = App.Placement(V(0, 0, -5), App.Rotation())
sketch4.addGeometry(Part.Circle(V(-19, -149, 0), V(0, 0, 1), 1.8), False)
sketch4.addGeometry(Part.Circle(V(19, -149, 0), V(0, 0, 1), 1.8), False)
sketch4.addGeometry(Part.Circle(V(19, -111, 0), V(0, 0, 1), 1.8), False)
sketch4.addGeometry(Part.Circle(V(-19, -111, 0), V(0, 0, 1), 1.8), False)
sketch4.addGeometry(Part.Circle(V(-19, -100, 0), V(0, 0, 1), 1.8), False)
sketch4.addGeometry(Part.Circle(V(19, -100, 0), V(0, 0, 1), 1.8), False)
sketch4.addGeometry(Part.Circle(V(19, -62, 0), V(0, 0, 1), 1.8), False)
sketch4.addGeometry(Part.Circle(V(-19, -62, 0), V(0, 0, 1), 1.8), False)
sketch4.addGeometry(Part.Circle(V(-19, 149, 0), V(0, 0, 1), 1.8), False)
sketch4.addGeometry(Part.Circle(V(19, 149, 0), V(0, 0, 1), 1.8), False)
sketch4.addGeometry(Part.Circle(V(-19, 111, 0), V(0, 0, 1), 1.8), False)
sketch4.addGeometry(Part.Circle(V(19, 111, 0), V(0, 0, 1), 1.8), False)
sketch4.addConstraint(Sketcher.Constraint("Equal", 0, 1))
sketch4.addConstraint(Sketcher.Constraint("Equal", 1, 2))
sketch4.addConstraint(Sketcher.Constraint("Equal", 2, 3))
sketch4.addConstraint(Sketcher.Constraint("Equal", 3, 4))
sketch4.addConstraint(Sketcher.Constraint("Equal", 4, 5))
sketch4.addConstraint(Sketcher.Constraint("Equal", 5, 6))
sketch4.addConstraint(Sketcher.Constraint("Equal", 6, 7))
sketch4.addConstraint(Sketcher.Constraint("Equal", 7, 8))
sketch4.addConstraint(Sketcher.Constraint("Equal", 8, 9))
sketch4.addConstraint(Sketcher.Constraint("Equal", 9, 10))
sketch4.addConstraint(Sketcher.Constraint("Equal", 10, 11))
sketch4.addConstraint(Sketcher.Constraint("Symmetric", 1, 3, 8, 3, -1, 1))
sketch4.addConstraint(Sketcher.Constraint("Symmetric", 0, 3, 9, 3, -1, 1))
sketch4.addConstraint(Sketcher.Constraint("Symmetric", 2, 3, 10, 3, -1, 1))
sketch4.addConstraint(Sketcher.Constraint("Symmetric", 3, 3, 11, 3, -1, 1))
sketch4.addConstraint(Sketcher.Constraint("Symmetric", 0, 3, 1, 3, -2))
sketch4.addConstraint(Sketcher.Constraint("Symmetric", 2, 3, 3, 3, -2))
sketch4.addConstraint(Sketcher.Constraint("Symmetric", 4, 3, 5, 3, -2))
sketch4.addConstraint(Sketcher.Constraint("Symmetric", 6, 3, 7, 3, -2))
sketch4.addConstraint(Sketcher.Constraint("Vertical", 1, 3, 2, 3))
sketch4.addConstraint(Sketcher.Constraint("Vertical", 3, 3, 4, 3))
sketch4.addConstraint(Sketcher.Constraint("Vertical", 5, 3, 6, 3))
sketch4.addConstraint(Sketcher.Constraint("Diameter", 0, Q("3.5 mm")))
sketch4.addConstraint(Sketcher.Constraint("DistanceX", 0, 3, -1, 1, Q("19 mm")))
sketch4.addConstraint(Sketcher.Constraint("DistanceY", 0, 3, -1, 1, Q("149 mm")))
sketch4.addConstraint(Sketcher.Constraint("DistanceY", 2, 3, -1, 1, Q("111 mm")))
sketch4.addConstraint(Sketcher.Constraint("DistanceY", 4, 3, -1, 1, Q("100 mm")))
sketch4.addConstraint(Sketcher.Constraint("DistanceY", 6, 3, -1, 1, Q("62 mm")))
sketch4.setExpression("Constraints[22]", "Params.sketch4_diameter")
pocket3 = body.newObject("PartDesign::Pocket", "Pocket002")
pocket3.Profile = sketch4
pocket3.setExpression("Length", "Params.pocket3_length")
pocket3.Reversed = True

# Sketch on XZ plane
sketch5 = body.newObject("Sketcher::SketchObject", "Sketch004")
sketch5.AttachmentSupport = (doc.getObject("XZ_Plane"), [""])
sketch5.MapMode = "FlatFace"
sketch5.AttachmentOffset = App.Placement(V(0, 0, -5), App.Rotation())
sketch5.addGeometry(Part.Circle(V(-170.5, -67.5, 0), V(0, 0, 1), 1.8), False)
sketch5.addGeometry(Part.Circle(V(-112.5, -67.5, 0), V(0, 0, 1), 1.8), False)
sketch5.addGeometry(Part.Circle(V(-112.5, -18.5, 0), V(0, 0, 1), 1.8), False)
sketch5.addGeometry(Part.Circle(V(-170.5, -18.5, 0), V(0, 0, 1), 1.8), False)
sketch5.addConstraint(Sketcher.Constraint("Equal", 0, 1))
sketch5.addConstraint(Sketcher.Constraint("Equal", 1, 2))
sketch5.addConstraint(Sketcher.Constraint("Equal", 2, 3))
sketch5.addConstraint(Sketcher.Constraint("Horizontal", 0, 3, 1, 3))
sketch5.addConstraint(Sketcher.Constraint("Horizontal", 2, 3, 3, 3))
sketch5.addConstraint(Sketcher.Constraint("Vertical", 1, 3, 2, 3))
sketch5.addConstraint(Sketcher.Constraint("Vertical", 0, 3, 3, 3))
sketch5.addConstraint(Sketcher.Constraint("Diameter", 0, Q("3.5 mm")))
sketch5.addConstraint(Sketcher.Constraint("DistanceX", 0, 3, 1, 3, Q("58 mm")))
sketch5.addConstraint(Sketcher.Constraint("DistanceY", 1, 3, 2, 3, Q("49 mm")))
sketch5.addConstraint(Sketcher.Constraint("DistanceX", 0, 3, -1, 1, Q("170.5 mm")))
sketch5.addConstraint(Sketcher.Constraint("DistanceY", 0, 3, -1, 1, Q("67.5 mm")))
sketch5.setExpression("Constraints[7]", "Params.sketch5_diameter")
pocket4 = body.newObject("PartDesign::Pocket", "Pocket003")
pocket4.Profile = sketch5
pocket4.setExpression("Length", "Params.pocket4_length")
pocket4.Reversed = True

# Sketch on XZ plane
sketch6 = body.newObject("Sketcher::SketchObject", "Sketch005")
sketch6.AttachmentSupport = (doc.getObject("XZ_Plane"), [""])
sketch6.MapMode = "FlatFace"
sketch6.AttachmentOffset = App.Placement(V(0, 0, -5), App.Rotation())
sketch6.addGeometry(Part.Ellipse(V(-40, -140, 0), V(-36.25, -130, 0), V(-40, -130, 0)), False)
sketch6.addGeometry(Part.Ellipse(V(40, -140, 0), V(43.75, -130, 0), V(40, -130, 0)), False)
sketch6.addGeometry(Part.Ellipse(V(40, 140, 0), V(36.25, 130, 0), V(40, 130, 0)), False)
sketch6.addGeometry(Part.Ellipse(V(-40, 140, 0), V(-43.75, 130, 0), V(-40, 130, 0)), False)
sketch6.addConstraint(Sketcher.Constraint("Block", 0))
sketch6.addConstraint(Sketcher.Constraint("Block", 1))
sketch6.addConstraint(Sketcher.Constraint("Block", 2))
sketch6.addConstraint(Sketcher.Constraint("Block", 3))
pocket5 = body.newObject("PartDesign::Pocket", "Pocket004")
pocket5.Profile = sketch6
pocket5.setExpression("Length", "Params.pocket5_length")
pocket5.Reversed = True

# Sketch on XZ plane
sketch7 = body.newObject("Sketcher::SketchObject", "Sketch006")
sketch7.AttachmentSupport = (doc.getObject("XZ_Plane"), [""])
sketch7.MapMode = "FlatFace"
sketch7.AttachmentOffset = App.Placement(V(0, 0, -5), App.Rotation())
sketch7.addGeometry(Part.Circle(V(-50, -25, 0), V(0, 0, 1), 1.6), False)
sketch7.addGeometry(Part.Circle(V(50, -25, 0), V(0, 0, 1), 1.6), False)
sketch7.addGeometry(Part.Circle(V(50, 25, 0), V(0, 0, 1), 1.6), False)
sketch7.addGeometry(Part.Circle(V(-50, 25, 0), V(0, 0, 1), 1.6), False)
sketch7.addConstraint(Sketcher.Constraint("Equal", 0, 1))
sketch7.addConstraint(Sketcher.Constraint("Equal", 1, 2))
sketch7.addConstraint(Sketcher.Constraint("Equal", 2, 3))
sketch7.addConstraint(Sketcher.Constraint("Symmetric", 0, 3, 2, 3, -1, 1))
sketch7.addConstraint(Sketcher.Constraint("Symmetric", 1, 3, 3, 3, -1, 1))
sketch7.addConstraint(Sketcher.Constraint("Symmetric", 0, 3, 1, 3, -2))
sketch7.addConstraint(Sketcher.Constraint("Diameter", 0, Q("3.3 mm")))
sketch7.addConstraint(Sketcher.Constraint("DistanceX", 0, 3, -1, 1, Q("50 mm")))
sketch7.addConstraint(Sketcher.Constraint("DistanceY", 0, 3, -1, 1, Q("25 mm")))
sketch7.setExpression("Constraints[6]", "Params.sketch7_diameter")
pocket6 = body.newObject("PartDesign::Pocket", "Pocket005")
pocket6.Profile = sketch7
pocket6.setExpression("Length", "Params.pocket6_length")
pocket6.Reversed = True

# Sketch on XZ plane
sketch8 = body.newObject("Sketcher::SketchObject", "Sketch007")
sketch8.AttachmentSupport = (doc.getObject("XZ_Plane"), [""])
sketch8.MapMode = "FlatFace"
sketch8.AttachmentOffset = App.Placement(V(0, 0, -5), App.Rotation())
sketch8.addGeometry(Part.Circle(V(-40.5, 49.5, 0), V(0, 0, 1), 1.6), False)
sketch8.addGeometry(Part.Circle(V(40.5, 49.5, 0), V(0, 0, 1), 1.6), False)
sketch8.addGeometry(Part.Circle(V(40.5, 87, 0), V(0, 0, 1), 1.6), False)
sketch8.addGeometry(Part.Circle(V(-40.5, 87, 0), V(0, 0, 1), 1.6), False)
sketch8.addConstraint(Sketcher.Constraint("Equal", 0, 1))
sketch8.addConstraint(Sketcher.Constraint("Equal", 1, 2))
sketch8.addConstraint(Sketcher.Constraint("Equal", 2, 3))
sketch8.addConstraint(Sketcher.Constraint("Symmetric", 0, 3, 1, 3, -2))
sketch8.addConstraint(Sketcher.Constraint("Symmetric", 2, 3, 3, 3, -2))
sketch8.addConstraint(Sketcher.Constraint("Vertical", 1, 3, 2, 3))
sketch8.addConstraint(Sketcher.Constraint("Diameter", 0, Q("3.3 mm")))
sketch8.addConstraint(Sketcher.Constraint("DistanceY", -1, 1, 2, 3, Q("87 mm")))
sketch8.addConstraint(Sketcher.Constraint("DistanceX", 0, 3, 1, 3, Q("81 mm")))
sketch8.addConstraint(Sketcher.Constraint("DistanceY", -1, 1, 0, 3, Q("49.5 mm")))
sketch8.setExpression("Constraints[6]", "Params.sketch8_diameter")
pocket7 = body.newObject("PartDesign::Pocket", "Pocket006")
pocket7.Profile = sketch8
pocket7.setExpression("Length", "Params.pocket7_length")
pocket7.Reversed = True

# Sketch on XZ plane
sketch9 = body.newObject("Sketcher::SketchObject", "Sketch008")
sketch9.AttachmentSupport = (doc.getObject("XZ_Plane"), [""])
sketch9.MapMode = "FlatFace"
sketch9.AttachmentOffset = App.Placement(V(0, 0, -5), App.Rotation())
sketch9.addGeometry(Part.LineSegment(V(-150, -195, 0), V(-150, -190, 0)), False)
sketch9.addGeometry(Part.LineSegment(V(-150, -190, 0), V(-50, -190, 0)), False)
sketch9.addGeometry(Part.LineSegment(V(-50, -190, 0), V(-50, -195, 0)), False)
sketch9.addGeometry(Part.LineSegment(V(-50, -195, 0), V(-150, -195, 0)), False)
sketch9.addGeometry(Part.LineSegment(V(50, -195, 0), V(50, -190, 0)), False)
sketch9.addGeometry(Part.LineSegment(V(50, -190, 0), V(150, -190, 0)), False)
sketch9.addGeometry(Part.LineSegment(V(150, -190, 0), V(150, -195, 0)), False)
sketch9.addGeometry(Part.LineSegment(V(150, -195, 0), V(50, -195, 0)), False)
sketch9.addGeometry(Part.LineSegment(V(50, 190, 0), V(50, 195, 0)), False)
sketch9.addGeometry(Part.LineSegment(V(50, 195, 0), V(150, 195, 0)), False)
sketch9.addGeometry(Part.LineSegment(V(150, 195, 0), V(150, 190, 0)), False)
sketch9.addGeometry(Part.LineSegment(V(150, 190, 0), V(50, 190, 0)), False)
sketch9.addGeometry(Part.LineSegment(V(-150, 190, 0), V(-150, 195, 0)), False)
sketch9.addGeometry(Part.LineSegment(V(-150, 195, 0), V(-50, 195, 0)), False)
sketch9.addGeometry(Part.LineSegment(V(-50, 195, 0), V(-50, 190, 0)), False)
sketch9.addGeometry(Part.LineSegment(V(-50, 190, 0), V(-150, 190, 0)), False)
sketch9.addConstraint(Sketcher.Constraint("Coincident", 0, 2, 1, 1))
sketch9.addConstraint(Sketcher.Constraint("Coincident", 1, 2, 2, 1))
sketch9.addConstraint(Sketcher.Constraint("Coincident", 2, 2, 3, 1))
sketch9.addConstraint(Sketcher.Constraint("Coincident", 3, 2, 0, 1))
sketch9.addConstraint(Sketcher.Constraint("Coincident", 4, 2, 5, 1))
sketch9.addConstraint(Sketcher.Constraint("Coincident", 5, 2, 6, 1))
sketch9.addConstraint(Sketcher.Constraint("Coincident", 6, 2, 7, 1))
sketch9.addConstraint(Sketcher.Constraint("Coincident", 7, 2, 4, 1))
sketch9.addConstraint(Sketcher.Constraint("Coincident", 8, 2, 9, 1))
sketch9.addConstraint(Sketcher.Constraint("Coincident", 9, 2, 10, 1))
sketch9.addConstraint(Sketcher.Constraint("Coincident", 10, 2, 11, 1))
sketch9.addConstraint(Sketcher.Constraint("Coincident", 11, 2, 8, 1))
sketch9.addConstraint(Sketcher.Constraint("Coincident", 12, 2, 13, 1))
sketch9.addConstraint(Sketcher.Constraint("Coincident", 13, 2, 14, 1))
sketch9.addConstraint(Sketcher.Constraint("Coincident", 14, 2, 15, 1))
sketch9.addConstraint(Sketcher.Constraint("Coincident", 15, 2, 12, 1))
sketch9.addConstraint(Sketcher.Constraint("Vertical", 0))
sketch9.addConstraint(Sketcher.Constraint("Horizontal", 1))
sketch9.addConstraint(Sketcher.Constraint("Vertical", 2))
sketch9.addConstraint(Sketcher.Constraint("Horizontal", 3))
sketch9.addConstraint(Sketcher.Constraint("Vertical", 4))
sketch9.addConstraint(Sketcher.Constraint("Horizontal", 5))
sketch9.addConstraint(Sketcher.Constraint("Vertical", 6))
sketch9.addConstraint(Sketcher.Constraint("Horizontal", 7))
sketch9.addConstraint(Sketcher.Constraint("Vertical", 8))
sketch9.addConstraint(Sketcher.Constraint("Horizontal", 9))
sketch9.addConstraint(Sketcher.Constraint("Vertical", 10))
sketch9.addConstraint(Sketcher.Constraint("Horizontal", 11))
sketch9.addConstraint(Sketcher.Constraint("Vertical", 12))
sketch9.addConstraint(Sketcher.Constraint("Horizontal", 13))
sketch9.addConstraint(Sketcher.Constraint("Vertical", 14))
sketch9.addConstraint(Sketcher.Constraint("Horizontal", 15))
sketch9.addConstraint(Sketcher.Constraint("Symmetric", 2, 2, 8, 2, -1, 1))
sketch9.addConstraint(Sketcher.Constraint("Symmetric", 0, 2, 10, 2, -1, 1))
sketch9.addConstraint(Sketcher.Constraint("Symmetric", 6, 2, 12, 2, -1, 1))
sketch9.addConstraint(Sketcher.Constraint("Symmetric", 4, 2, 14, 2, -1, 1))
sketch9.addConstraint(Sketcher.Constraint("Symmetric", 1, 2, 4, 2, -2))
sketch9.addConstraint(Sketcher.Constraint("Symmetric", 3, 2, 6, 2, -2))
sketch9.addConstraint(Sketcher.Constraint("DistanceX", 1, 1, 1, 2, Q("100 mm")))
sketch9.addConstraint(Sketcher.Constraint("DistanceY", 0, 1, 0, 2, Q("5 mm")))
sketch9.addConstraint(Sketcher.Constraint("DistanceX", 0, 2, -1, 1, Q("150 mm")))
sketch9.addConstraint(Sketcher.Constraint("DistanceY", 0, 2, -1, 1, Q("190 mm")))
sketch9.setExpression("Constraints[38]", "Params.sketch9_width")
sketch9.setExpression("Constraints[39]", "Params.sketch9_height")
pocket8 = body.newObject("PartDesign::Pocket", "Pocket007")
pocket8.Profile = sketch9
pocket8.setExpression("Length", "Params.pocket8_length")
pocket8.Reversed = True

doc.recompute()
